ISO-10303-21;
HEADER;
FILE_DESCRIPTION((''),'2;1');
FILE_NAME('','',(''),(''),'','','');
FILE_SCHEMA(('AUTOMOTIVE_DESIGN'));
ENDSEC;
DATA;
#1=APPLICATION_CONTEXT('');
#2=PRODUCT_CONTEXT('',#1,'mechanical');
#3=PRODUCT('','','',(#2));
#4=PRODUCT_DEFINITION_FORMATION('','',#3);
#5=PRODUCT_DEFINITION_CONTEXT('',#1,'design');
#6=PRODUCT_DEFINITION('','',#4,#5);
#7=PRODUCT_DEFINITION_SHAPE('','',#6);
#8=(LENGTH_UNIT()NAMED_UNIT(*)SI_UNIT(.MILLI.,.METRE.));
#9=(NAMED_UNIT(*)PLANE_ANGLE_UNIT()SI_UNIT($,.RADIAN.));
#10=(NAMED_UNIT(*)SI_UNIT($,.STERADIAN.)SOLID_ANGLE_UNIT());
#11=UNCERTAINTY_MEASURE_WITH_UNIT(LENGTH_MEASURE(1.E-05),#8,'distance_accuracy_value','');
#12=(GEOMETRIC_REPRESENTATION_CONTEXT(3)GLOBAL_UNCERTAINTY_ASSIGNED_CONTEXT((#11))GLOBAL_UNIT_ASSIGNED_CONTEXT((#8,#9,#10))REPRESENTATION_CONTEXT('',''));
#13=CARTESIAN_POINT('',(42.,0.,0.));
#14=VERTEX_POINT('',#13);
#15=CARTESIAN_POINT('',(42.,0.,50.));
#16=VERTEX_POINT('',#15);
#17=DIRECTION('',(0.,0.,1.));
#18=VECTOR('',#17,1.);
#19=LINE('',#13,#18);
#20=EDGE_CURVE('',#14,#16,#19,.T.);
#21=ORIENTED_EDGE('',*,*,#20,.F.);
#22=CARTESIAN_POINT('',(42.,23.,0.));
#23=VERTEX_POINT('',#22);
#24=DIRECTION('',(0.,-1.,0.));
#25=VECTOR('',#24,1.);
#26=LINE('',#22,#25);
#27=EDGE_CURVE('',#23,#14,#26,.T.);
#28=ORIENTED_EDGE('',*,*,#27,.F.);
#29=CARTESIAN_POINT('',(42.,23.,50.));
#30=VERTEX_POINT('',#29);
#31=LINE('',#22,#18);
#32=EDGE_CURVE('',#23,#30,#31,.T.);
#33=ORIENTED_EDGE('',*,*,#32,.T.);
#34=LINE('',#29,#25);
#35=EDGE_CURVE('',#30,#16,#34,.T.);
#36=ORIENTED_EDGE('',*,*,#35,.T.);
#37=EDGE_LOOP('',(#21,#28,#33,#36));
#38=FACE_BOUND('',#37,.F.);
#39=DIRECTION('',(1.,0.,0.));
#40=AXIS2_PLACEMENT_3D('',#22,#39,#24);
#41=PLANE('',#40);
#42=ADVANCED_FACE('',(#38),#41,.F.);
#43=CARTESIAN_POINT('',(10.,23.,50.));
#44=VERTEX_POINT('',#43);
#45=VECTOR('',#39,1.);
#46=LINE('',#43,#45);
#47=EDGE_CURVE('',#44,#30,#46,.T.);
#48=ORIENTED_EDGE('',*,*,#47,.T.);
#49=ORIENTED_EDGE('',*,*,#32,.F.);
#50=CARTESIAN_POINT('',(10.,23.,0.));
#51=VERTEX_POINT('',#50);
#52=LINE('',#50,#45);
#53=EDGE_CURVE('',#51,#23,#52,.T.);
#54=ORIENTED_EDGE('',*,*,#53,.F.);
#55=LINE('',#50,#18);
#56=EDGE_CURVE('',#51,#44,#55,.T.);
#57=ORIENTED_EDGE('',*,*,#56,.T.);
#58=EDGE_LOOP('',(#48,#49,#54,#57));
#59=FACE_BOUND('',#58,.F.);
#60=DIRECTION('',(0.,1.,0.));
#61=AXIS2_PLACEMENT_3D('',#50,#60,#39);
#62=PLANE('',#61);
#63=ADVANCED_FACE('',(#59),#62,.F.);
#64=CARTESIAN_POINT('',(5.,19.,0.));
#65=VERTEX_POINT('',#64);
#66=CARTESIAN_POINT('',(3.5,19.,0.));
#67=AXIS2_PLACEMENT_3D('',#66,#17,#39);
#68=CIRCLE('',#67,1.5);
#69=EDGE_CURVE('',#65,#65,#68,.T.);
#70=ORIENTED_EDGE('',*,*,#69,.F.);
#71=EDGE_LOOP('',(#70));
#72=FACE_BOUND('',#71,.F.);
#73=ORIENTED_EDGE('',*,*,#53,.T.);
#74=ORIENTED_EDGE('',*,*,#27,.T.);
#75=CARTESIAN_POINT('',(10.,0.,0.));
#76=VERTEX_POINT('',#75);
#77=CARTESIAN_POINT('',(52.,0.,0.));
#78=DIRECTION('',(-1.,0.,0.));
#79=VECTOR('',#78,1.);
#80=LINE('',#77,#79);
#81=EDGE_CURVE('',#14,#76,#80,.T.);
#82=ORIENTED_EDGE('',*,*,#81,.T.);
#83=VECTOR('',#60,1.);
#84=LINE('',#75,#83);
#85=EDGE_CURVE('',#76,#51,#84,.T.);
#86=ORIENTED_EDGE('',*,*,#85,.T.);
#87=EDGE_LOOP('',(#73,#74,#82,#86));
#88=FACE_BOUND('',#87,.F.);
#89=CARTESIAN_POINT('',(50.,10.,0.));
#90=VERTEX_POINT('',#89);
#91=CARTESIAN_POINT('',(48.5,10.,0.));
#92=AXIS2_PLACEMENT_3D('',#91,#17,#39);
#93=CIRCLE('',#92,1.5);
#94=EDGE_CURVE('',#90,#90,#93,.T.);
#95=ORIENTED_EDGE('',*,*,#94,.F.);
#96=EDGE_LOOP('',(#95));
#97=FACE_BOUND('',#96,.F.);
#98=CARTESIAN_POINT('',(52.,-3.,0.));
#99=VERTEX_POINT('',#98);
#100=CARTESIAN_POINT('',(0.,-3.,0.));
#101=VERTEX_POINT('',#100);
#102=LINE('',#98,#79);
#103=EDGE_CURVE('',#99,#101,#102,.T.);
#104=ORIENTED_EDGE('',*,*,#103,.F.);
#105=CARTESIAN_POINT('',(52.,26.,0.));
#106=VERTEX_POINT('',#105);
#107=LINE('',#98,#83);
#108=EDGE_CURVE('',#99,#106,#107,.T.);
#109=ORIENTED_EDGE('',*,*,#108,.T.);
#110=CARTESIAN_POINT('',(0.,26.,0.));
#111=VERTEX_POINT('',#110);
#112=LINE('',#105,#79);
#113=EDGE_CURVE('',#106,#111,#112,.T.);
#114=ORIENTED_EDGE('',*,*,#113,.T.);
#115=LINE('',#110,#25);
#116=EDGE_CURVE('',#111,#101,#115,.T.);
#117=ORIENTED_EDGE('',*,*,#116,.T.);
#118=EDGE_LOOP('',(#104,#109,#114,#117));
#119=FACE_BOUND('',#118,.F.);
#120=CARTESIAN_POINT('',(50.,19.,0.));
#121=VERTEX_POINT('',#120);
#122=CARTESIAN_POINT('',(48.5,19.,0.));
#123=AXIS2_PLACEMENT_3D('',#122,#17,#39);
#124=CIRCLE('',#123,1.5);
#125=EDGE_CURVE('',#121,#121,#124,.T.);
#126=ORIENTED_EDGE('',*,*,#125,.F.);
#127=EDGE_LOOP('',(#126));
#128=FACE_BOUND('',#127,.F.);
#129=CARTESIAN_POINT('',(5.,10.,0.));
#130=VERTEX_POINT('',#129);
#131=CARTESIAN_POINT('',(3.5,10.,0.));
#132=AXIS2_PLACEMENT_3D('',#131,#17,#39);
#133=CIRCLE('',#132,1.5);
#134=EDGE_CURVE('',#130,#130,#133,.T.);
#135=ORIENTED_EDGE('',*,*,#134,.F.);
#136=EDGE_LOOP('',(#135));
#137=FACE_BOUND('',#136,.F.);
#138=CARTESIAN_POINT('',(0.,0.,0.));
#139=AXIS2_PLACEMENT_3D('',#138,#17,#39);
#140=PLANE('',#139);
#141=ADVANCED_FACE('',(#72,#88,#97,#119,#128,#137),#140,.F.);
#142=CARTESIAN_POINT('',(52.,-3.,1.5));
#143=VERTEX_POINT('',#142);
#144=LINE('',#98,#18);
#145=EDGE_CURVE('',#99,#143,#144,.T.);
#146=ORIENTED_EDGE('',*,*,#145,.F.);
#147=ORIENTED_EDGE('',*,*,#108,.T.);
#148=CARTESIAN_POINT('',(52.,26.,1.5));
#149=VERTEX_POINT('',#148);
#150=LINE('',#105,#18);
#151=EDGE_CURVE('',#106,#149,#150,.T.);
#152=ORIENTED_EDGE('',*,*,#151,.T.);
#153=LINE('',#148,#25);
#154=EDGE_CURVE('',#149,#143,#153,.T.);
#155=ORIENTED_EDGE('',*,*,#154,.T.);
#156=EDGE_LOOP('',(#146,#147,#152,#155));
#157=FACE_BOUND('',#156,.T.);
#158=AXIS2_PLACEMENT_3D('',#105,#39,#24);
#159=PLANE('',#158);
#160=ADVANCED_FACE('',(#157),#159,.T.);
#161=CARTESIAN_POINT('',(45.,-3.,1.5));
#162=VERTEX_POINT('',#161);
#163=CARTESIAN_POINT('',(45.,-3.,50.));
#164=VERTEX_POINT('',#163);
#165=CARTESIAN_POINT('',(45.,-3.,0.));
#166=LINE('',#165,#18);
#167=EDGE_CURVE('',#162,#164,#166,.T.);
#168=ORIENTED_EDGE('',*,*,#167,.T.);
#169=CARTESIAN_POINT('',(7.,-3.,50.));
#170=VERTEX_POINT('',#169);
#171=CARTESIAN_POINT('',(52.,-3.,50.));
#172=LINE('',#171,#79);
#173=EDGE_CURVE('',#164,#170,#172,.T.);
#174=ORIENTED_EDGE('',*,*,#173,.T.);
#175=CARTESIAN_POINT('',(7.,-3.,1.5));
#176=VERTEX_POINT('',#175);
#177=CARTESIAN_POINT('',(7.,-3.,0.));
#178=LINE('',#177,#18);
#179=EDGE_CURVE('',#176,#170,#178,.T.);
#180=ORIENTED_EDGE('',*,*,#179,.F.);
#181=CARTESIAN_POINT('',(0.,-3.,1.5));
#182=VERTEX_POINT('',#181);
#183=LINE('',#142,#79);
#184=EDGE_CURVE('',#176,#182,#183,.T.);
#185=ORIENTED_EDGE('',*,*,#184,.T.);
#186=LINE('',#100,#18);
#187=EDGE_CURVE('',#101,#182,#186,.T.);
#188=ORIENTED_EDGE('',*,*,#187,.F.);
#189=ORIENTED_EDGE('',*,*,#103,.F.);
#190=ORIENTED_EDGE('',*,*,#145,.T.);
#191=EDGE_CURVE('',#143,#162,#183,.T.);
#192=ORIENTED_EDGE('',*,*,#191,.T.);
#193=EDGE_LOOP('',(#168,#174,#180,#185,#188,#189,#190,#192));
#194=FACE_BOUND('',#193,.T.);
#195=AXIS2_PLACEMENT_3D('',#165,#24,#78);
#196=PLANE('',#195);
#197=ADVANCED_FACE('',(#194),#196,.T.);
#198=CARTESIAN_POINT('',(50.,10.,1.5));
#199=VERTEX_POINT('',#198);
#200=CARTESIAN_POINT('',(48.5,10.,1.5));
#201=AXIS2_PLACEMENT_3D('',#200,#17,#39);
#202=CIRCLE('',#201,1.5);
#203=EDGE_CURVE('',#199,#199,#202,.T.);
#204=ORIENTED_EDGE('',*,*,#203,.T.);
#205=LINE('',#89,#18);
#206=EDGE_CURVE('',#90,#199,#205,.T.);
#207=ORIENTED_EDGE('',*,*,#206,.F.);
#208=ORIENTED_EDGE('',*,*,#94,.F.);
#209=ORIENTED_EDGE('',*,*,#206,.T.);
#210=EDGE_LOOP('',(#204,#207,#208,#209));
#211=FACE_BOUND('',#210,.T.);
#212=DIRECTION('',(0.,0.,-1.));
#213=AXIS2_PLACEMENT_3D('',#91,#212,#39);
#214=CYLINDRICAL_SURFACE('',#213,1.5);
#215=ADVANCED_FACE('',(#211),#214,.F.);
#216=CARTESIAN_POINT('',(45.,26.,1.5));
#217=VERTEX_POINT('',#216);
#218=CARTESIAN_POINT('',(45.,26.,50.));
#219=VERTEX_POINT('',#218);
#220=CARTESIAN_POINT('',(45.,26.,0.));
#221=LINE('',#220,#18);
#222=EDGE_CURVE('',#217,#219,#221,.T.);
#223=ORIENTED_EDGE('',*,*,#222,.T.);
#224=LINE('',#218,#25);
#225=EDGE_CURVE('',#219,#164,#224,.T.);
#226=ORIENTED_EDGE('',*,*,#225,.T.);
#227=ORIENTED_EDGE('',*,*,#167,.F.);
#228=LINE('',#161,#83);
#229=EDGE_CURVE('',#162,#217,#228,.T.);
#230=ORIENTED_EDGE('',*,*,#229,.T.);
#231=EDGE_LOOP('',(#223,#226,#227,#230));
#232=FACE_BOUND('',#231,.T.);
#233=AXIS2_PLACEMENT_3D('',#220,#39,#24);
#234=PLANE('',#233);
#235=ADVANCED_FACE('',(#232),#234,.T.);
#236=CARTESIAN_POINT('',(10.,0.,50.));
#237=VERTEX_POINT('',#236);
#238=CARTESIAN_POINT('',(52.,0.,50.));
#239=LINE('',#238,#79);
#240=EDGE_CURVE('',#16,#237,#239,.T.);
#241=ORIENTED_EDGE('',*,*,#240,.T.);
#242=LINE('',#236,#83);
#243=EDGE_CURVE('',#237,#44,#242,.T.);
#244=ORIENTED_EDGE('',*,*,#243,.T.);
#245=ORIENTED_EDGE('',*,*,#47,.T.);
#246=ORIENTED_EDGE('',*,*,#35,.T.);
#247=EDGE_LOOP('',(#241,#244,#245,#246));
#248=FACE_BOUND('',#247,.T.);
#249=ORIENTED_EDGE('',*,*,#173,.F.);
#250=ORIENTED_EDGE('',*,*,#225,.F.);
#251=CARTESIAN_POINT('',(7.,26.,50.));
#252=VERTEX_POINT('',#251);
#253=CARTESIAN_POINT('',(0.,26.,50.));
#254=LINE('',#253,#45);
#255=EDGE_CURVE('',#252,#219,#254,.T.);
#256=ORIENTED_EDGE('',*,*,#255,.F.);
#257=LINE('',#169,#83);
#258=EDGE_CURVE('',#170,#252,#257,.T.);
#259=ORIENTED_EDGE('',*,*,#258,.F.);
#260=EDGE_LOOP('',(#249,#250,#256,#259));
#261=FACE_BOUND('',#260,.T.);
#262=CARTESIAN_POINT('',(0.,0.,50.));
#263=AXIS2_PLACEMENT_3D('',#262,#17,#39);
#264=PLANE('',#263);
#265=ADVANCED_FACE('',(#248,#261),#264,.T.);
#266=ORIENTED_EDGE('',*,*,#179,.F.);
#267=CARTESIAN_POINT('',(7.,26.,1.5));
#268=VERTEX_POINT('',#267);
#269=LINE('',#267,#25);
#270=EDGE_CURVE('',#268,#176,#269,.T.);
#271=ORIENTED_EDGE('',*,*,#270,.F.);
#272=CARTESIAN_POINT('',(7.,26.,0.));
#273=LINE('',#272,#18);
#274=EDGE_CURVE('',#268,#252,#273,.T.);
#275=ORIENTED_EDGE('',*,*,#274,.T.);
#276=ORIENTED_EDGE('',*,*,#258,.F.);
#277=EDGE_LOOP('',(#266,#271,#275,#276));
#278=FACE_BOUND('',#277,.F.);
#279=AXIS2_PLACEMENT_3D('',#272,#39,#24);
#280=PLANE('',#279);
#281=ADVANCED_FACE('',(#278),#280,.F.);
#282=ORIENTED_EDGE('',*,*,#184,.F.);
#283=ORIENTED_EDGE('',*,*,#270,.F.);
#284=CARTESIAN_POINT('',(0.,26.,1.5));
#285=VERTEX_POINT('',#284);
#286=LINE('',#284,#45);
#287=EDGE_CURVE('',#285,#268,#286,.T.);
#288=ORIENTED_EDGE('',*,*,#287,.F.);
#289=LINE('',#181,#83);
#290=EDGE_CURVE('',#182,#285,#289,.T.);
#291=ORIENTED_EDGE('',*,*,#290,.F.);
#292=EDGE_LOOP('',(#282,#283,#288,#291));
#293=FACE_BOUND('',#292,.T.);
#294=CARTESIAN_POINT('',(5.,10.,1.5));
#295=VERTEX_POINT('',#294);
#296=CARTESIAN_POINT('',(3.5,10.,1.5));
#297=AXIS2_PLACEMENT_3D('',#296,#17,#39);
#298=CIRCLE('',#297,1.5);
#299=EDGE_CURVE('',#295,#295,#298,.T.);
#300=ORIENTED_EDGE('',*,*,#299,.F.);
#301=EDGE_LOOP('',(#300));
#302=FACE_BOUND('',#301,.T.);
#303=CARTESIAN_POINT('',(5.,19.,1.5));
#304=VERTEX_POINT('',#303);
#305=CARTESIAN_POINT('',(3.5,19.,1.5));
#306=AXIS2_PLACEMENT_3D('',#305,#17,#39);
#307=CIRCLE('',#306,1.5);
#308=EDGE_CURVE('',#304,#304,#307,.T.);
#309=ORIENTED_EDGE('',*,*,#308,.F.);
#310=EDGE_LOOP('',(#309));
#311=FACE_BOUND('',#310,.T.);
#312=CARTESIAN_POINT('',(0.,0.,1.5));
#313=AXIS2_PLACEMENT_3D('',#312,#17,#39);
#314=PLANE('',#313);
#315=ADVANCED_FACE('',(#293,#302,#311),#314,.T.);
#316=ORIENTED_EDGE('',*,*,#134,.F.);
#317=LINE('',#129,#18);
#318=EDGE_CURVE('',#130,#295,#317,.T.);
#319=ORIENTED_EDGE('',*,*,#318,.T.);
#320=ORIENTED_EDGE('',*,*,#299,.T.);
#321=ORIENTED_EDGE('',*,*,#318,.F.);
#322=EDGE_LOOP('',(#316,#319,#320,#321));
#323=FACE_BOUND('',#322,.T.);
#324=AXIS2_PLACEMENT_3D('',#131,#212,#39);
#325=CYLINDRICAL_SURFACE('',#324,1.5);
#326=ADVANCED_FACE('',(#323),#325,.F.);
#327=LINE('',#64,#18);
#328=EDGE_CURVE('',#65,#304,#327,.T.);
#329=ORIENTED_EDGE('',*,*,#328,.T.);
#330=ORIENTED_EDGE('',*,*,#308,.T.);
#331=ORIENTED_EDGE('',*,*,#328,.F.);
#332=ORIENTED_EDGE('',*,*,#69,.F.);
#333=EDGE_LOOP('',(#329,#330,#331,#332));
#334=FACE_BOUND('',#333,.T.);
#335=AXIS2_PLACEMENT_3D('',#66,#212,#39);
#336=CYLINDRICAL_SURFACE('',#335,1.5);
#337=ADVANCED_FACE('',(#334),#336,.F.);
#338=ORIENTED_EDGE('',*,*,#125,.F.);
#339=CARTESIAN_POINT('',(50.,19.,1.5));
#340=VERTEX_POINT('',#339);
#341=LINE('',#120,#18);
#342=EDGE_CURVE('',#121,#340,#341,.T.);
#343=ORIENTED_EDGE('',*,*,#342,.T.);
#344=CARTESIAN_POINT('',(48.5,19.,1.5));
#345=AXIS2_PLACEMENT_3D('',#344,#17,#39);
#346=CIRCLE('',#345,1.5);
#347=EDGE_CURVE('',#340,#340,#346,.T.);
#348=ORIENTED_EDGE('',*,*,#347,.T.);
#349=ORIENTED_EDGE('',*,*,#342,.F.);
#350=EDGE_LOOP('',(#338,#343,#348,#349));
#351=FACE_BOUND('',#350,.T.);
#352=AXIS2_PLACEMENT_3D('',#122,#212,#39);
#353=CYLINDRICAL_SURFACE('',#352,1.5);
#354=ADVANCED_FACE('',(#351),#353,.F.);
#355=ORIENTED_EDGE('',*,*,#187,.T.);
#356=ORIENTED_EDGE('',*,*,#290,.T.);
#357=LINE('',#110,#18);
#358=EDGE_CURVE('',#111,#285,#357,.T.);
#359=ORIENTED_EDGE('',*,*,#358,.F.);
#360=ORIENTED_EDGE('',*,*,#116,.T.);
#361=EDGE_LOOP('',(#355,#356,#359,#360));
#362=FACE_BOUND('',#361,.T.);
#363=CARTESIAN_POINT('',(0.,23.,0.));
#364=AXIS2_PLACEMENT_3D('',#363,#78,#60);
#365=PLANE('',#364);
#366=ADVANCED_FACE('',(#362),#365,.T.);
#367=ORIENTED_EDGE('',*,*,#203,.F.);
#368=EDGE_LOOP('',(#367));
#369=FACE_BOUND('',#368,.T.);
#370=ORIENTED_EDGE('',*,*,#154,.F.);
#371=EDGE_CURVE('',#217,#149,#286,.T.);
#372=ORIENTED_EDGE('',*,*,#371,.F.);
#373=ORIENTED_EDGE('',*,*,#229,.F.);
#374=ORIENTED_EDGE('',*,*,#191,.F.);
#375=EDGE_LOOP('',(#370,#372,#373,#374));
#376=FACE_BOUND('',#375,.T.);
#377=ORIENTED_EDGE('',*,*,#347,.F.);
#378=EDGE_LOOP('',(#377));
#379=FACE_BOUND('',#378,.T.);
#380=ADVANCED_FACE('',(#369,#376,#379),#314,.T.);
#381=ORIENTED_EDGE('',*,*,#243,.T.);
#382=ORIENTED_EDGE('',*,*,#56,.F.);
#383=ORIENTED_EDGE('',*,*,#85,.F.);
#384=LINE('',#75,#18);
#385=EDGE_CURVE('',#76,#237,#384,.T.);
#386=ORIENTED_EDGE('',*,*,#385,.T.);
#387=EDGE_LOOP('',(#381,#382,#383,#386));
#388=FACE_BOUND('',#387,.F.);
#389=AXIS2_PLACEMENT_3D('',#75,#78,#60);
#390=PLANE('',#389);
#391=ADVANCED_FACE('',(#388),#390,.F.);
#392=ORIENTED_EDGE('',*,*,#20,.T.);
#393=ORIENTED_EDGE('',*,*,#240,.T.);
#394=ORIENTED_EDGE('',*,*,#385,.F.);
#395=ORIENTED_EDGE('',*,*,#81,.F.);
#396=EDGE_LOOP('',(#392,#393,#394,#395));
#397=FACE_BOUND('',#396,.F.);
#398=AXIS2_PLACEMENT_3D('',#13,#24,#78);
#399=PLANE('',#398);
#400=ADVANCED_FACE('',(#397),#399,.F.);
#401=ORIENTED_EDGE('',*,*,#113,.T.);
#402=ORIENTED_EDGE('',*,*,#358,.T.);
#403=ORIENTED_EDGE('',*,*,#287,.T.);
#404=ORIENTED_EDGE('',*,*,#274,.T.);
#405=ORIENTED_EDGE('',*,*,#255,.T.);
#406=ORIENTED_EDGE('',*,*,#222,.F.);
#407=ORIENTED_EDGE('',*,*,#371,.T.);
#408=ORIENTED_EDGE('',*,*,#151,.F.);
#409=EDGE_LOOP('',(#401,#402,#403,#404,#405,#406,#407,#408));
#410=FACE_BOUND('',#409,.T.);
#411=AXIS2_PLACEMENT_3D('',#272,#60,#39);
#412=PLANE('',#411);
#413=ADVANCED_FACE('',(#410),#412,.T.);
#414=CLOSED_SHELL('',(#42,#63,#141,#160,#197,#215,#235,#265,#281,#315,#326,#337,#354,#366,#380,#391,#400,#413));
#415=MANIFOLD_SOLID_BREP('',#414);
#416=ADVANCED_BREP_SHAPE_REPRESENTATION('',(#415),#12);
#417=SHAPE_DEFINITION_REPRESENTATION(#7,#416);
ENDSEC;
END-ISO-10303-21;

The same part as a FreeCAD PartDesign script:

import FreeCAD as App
import Part
import Sketcher
from FreeCAD import Vector
Q = App.Units.Quantity


def add_polygon(sketch, points):
    """Adds a closed chain of lines whose ends are joined by coincident constraints."""
    first, n = sketch.GeometryCount, len(points)
    for a, b in zip(points, points[1:] + points[:1]):
        sketch.addGeometry(Part.LineSegment(App.Vector(*a, 0), App.Vector(*b, 0)), False)
    for i in range(n):
        sketch.addConstraint(Sketcher.Constraint("Coincident", first + i, 2, first + (i + 1) % n, 1))

doc = App.newDocument("Part")
params = doc.addObject("Spreadsheet::Sheet", "Params")
for row, (alias, value) in enumerate([
    ("sketch1_width", "38 mm"),
    ("pad1_length", "50 mm"),
    ("sketch2_diameter", "3 mm"),
    ("sketch2_width", "7 mm"),
    ("pad2_length", "1.5 mm"),
], start=1):
    params.set(f"A{row}", alias)
    params.set(f"B{row}", "=" + value)
    params.setAlias(f"B{row}", alias)

body = doc.addObject("PartDesign::Body", "Body")

# Sketch on XY plane
sketch1 = body.newObject("Sketcher::SketchObject", "Sketch")
sketch1.AttachmentSupport = (doc.getObject("XY_Plane"), [""])
sketch1.MapMode = "FlatFace"
add_polygon(sketch1, [(45, 26), (7, 26), (7, -3), (45, -3)])  # lines 0-3
add_polygon(sketch1, [(10, 23), (42, 23), (42, 0), (10, 0)])  # lines 4-7
sketch1.addConstraint([
    Sketcher.Constraint("Horizontal", 0),
    Sketcher.Constraint("Vertical", 1),
    Sketcher.Constraint("Horizontal", 2),
    Sketcher.Constraint("Vertical", 3),
    Sketcher.Constraint("Horizontal", 4),
    Sketcher.Constraint("Vertical", 5),
    Sketcher.Constraint("Horizontal", 6),
    Sketcher.Constraint("Vertical", 7),
    Sketcher.Constraint("PointOnObject", 5, 2, -1),
    Sketcher.Constraint("DistanceX", -1, 1, 0, 2, Q("7 mm")),
    Sketcher.Constraint("DistanceY", -1, 1, 0, 2, Q("26 mm")),
    Sketcher.Constraint("DistanceY", 1, 2, -1, 1, Q("3 mm")),
    Sketcher.Constraint("DistanceX", -1, 1, 6, 2, Q("10 mm")),
    Sketcher.Constraint("DistanceX", 4, 2, 3, 2, Q("3 mm")),
    Sketcher.Constraint("DistanceY", 4, 2, 3, 2, Q("3 mm")),
    Sketcher.Constraint("DistanceX", 0, 2, 0, 1, Q("38 mm")),
])
sketch1.setExpression("Constraints[23]", "Params.sketch1_width")
pad1 = body.newObject("PartDesign::Pad", "Pad")
pad1.Profile = sketch1
pad1.setExpression("Length", "Params.pad1_length")

# Sketch on XY plane
sketch2 = body.newObject("Sketcher::SketchObject", "Sketch001")
sketch2.AttachmentSupport = (doc.getObject("XY_Plane"), [""])
sketch2.MapMode = "FlatFace"
add_polygon(sketch2, [(7, 26), (0, 26), (0, -3), (7, -3)])  # lines 0-3
sketch2.addGeometry(Part.Circle(Vector(3.5, 19, 0), Vector(0, 0, 1), 1.5), False)  # 4
sketch2.addGeometry(Part.Circle(Vector(3.5, 10, 0), Vector(0, 0, 1), 1.5), False)  # 5
add_polygon(sketch2, [(52, 26), (45, 26), (45, -3), (52, -3)])  # lines 6-9
sketch2.addGeometry(Part.Circle(Vector(48.5, 19, 0), Vector(0, 0, 1), 1.5), False)  # 10
sketch2.addGeometry(Part.Circle(Vector(48.5, 10, 0), Vector(0, 0, 1), 1.5), False)  # 11
sketch2.addConstraint([
    Sketcher.Constraint("Horizontal", 0),
    Sketcher.Constraint("Vertical", 1),
    Sketcher.Constraint("Horizontal", 2),
    Sketcher.Constraint("Vertical", 3),
    Sketcher.Constraint("Horizontal", 6),
    Sketcher.Constraint("Vertical", 7),
    Sketcher.Constraint("Horizontal", 8),
    Sketcher.Constraint("Vertical", 9),
    Sketcher.Constraint("Equal", 4, 5),
    Sketcher.Constraint("Equal", 5, 10),
    Sketcher.Constraint("Equal", 10, 11),
    Sketcher.Constraint("PointOnObject", 0, 2, -2),
    Sketcher.Constraint("Horizontal", 4, 3, 10, 3),
    Sketcher.Constraint("Horizontal", 5, 3, 11, 3),
    Sketcher.Constraint("Horizontal", 3, 2, 6, 2),
    Sketcher.Constraint("Horizontal", 2, 2, 7, 2),
    Sketcher.Constraint("Vertical", 4, 3, 5, 3),
    Sketcher.Constraint("Vertical", 10, 3, 11, 3),
    Sketcher.Constraint("Equal", 2, 6),
    Sketcher.Constraint("Diameter", 4, Q("3 mm")),
    Sketcher.Constraint("DistanceX", 0, 2, 0, 1, Q("7 mm")),
    Sketcher.Constraint("DistanceY", -1, 1, 5, 3, Q("10 mm")),
    Sketcher.Constraint("DistanceY", -1, 1, 0, 2, Q("26 mm")),
    Sketcher.Constraint("DistanceY", 1, 2, -1, 1, Q("3 mm")),
    Sketcher.Constraint("DistanceX", -1, 1, 8, 2, Q("52 mm")),
    Sketcher.Constraint("DistanceY", 4, 3, 0, 2, Q("7 mm")),
    Sketcher.Constraint("DistanceX", -1, 1, 4, 3, Q("3.5 mm")),
    Sketcher.Constraint("DistanceX", 6, 2, 10, 3, Q("3.5 mm")),
])
sketch2.setExpression("Constraints[27]", "Params.sketch2_diameter")
sketch2.setExpression("Constraints[28]", "Params.sketch2_width")
pad2 = body.newObject("PartDesign::Pad", "Pad001")
pad2.Profile = sketch2
pad2.setExpression("Length", "Params.pad2_length")

doc.recompute()
